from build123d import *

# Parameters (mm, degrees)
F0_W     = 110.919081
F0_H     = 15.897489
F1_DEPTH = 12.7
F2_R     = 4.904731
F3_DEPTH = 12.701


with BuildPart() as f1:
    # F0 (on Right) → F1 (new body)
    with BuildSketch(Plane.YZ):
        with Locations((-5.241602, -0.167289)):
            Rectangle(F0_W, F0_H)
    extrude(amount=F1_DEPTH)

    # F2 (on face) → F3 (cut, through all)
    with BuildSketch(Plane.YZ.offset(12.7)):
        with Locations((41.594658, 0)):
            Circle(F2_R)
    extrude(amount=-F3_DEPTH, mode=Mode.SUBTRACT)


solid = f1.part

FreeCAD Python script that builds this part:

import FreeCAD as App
import Part
import Sketcher

doc = App.newDocument("Part")
params = doc.addObject("Spreadsheet::Sheet", "Params")
for row, (alias, value) in enumerate([
    ("pad1_length", "0.5 in"),
], start=1):
    params.set(f"A{row}", alias)
    params.set(f"B{row}", "=" + value)
    params.setAlias(f"B{row}", alias)

body = doc.addObject("PartDesign::Body", "Body")

sketch1 = doc.addObject("Sketcher::SketchObject", "Sketch")
body.addObject(sketch1)
sketch1.AttachmentSupport = (doc.YZ_Plane, [""])
sketch1.MapMode = "FlatFace"
sketch1.addGeometry([
    Part.LineSegment(App.Vector(-61, 8, 0), App.Vector(-61, -8, 0)),
    Part.LineSegment(App.Vector(-61, -8, 0), App.Vector(50, -8, 0)),
    Part.LineSegment(App.Vector(50, -8, 0), App.Vector(50, 8, 0)),
    Part.LineSegment(App.Vector(50, 8, 0), App.Vector(-61, 8, 0)),
], False)
sketch1.addConstraint([
    Sketcher.Constraint("Coincident", 0, 2, 1, 1),
    Sketcher.Constraint("Coincident", 1, 2, 2, 1),
    Sketcher.Constraint("Coincident", 2, 2, 3, 1),
    Sketcher.Constraint("Coincident", 3, 2, 0, 1),
    Sketcher.Constraint("Vertical", 0),
    Sketcher.Constraint("Horizontal", 1),
    Sketcher.Constraint("Vertical", 2),
    Sketcher.Constraint("Horizontal", 3),
    Sketcher.Constraint("DistanceX", 1, 1, 1, 2, 110.919081),
    Sketcher.Constraint("DistanceY", 0, 2, 0, 1, 15.897489),
    Sketcher.Constraint("DistanceX", -1, 1, 1, 2, 50.217939),
    Sketcher.Constraint("DistanceY", 0, 2, -1, 1, 8.116034),
])
pad1 = doc.addObject("PartDesign::Pad", "Pad")
body.addObject(pad1)
pad1.Profile = sketch1
pad1.setExpression("Length", "Params.pad1_length")

sketch2 = doc.addObject("Sketcher::SketchObject", "Sketch001")
body.addObject(sketch2)
sketch2.AttachmentSupport = (doc.YZ_Plane, [""])
sketch2.MapMode = "FlatFace"
sketch2.AttachmentOffset = App.Placement(App.Vector(0, 0, 0.5 * 25.4), App.Rotation())
sketch2.addGeometry(Part.Circle(App.Vector(41.6, 0, 0), App.Vector(0, 0, 1), 4.9), False)
sketch2.addConstraint([
    Sketcher.Constraint("PointOnObject", 0, 3, -1),
    Sketcher.Constraint("Diameter", 0, 9.809462),
    Sketcher.Constraint("DistanceX", -1, 1, 0, 3, 41.594658),
])
pocket1 = doc.addObject("PartDesign::Pocket", "Pocket")
body.addObject(pocket1)
pocket1.Profile = sketch2
pocket1.Type = "ThroughAll"

doc.recompute()
